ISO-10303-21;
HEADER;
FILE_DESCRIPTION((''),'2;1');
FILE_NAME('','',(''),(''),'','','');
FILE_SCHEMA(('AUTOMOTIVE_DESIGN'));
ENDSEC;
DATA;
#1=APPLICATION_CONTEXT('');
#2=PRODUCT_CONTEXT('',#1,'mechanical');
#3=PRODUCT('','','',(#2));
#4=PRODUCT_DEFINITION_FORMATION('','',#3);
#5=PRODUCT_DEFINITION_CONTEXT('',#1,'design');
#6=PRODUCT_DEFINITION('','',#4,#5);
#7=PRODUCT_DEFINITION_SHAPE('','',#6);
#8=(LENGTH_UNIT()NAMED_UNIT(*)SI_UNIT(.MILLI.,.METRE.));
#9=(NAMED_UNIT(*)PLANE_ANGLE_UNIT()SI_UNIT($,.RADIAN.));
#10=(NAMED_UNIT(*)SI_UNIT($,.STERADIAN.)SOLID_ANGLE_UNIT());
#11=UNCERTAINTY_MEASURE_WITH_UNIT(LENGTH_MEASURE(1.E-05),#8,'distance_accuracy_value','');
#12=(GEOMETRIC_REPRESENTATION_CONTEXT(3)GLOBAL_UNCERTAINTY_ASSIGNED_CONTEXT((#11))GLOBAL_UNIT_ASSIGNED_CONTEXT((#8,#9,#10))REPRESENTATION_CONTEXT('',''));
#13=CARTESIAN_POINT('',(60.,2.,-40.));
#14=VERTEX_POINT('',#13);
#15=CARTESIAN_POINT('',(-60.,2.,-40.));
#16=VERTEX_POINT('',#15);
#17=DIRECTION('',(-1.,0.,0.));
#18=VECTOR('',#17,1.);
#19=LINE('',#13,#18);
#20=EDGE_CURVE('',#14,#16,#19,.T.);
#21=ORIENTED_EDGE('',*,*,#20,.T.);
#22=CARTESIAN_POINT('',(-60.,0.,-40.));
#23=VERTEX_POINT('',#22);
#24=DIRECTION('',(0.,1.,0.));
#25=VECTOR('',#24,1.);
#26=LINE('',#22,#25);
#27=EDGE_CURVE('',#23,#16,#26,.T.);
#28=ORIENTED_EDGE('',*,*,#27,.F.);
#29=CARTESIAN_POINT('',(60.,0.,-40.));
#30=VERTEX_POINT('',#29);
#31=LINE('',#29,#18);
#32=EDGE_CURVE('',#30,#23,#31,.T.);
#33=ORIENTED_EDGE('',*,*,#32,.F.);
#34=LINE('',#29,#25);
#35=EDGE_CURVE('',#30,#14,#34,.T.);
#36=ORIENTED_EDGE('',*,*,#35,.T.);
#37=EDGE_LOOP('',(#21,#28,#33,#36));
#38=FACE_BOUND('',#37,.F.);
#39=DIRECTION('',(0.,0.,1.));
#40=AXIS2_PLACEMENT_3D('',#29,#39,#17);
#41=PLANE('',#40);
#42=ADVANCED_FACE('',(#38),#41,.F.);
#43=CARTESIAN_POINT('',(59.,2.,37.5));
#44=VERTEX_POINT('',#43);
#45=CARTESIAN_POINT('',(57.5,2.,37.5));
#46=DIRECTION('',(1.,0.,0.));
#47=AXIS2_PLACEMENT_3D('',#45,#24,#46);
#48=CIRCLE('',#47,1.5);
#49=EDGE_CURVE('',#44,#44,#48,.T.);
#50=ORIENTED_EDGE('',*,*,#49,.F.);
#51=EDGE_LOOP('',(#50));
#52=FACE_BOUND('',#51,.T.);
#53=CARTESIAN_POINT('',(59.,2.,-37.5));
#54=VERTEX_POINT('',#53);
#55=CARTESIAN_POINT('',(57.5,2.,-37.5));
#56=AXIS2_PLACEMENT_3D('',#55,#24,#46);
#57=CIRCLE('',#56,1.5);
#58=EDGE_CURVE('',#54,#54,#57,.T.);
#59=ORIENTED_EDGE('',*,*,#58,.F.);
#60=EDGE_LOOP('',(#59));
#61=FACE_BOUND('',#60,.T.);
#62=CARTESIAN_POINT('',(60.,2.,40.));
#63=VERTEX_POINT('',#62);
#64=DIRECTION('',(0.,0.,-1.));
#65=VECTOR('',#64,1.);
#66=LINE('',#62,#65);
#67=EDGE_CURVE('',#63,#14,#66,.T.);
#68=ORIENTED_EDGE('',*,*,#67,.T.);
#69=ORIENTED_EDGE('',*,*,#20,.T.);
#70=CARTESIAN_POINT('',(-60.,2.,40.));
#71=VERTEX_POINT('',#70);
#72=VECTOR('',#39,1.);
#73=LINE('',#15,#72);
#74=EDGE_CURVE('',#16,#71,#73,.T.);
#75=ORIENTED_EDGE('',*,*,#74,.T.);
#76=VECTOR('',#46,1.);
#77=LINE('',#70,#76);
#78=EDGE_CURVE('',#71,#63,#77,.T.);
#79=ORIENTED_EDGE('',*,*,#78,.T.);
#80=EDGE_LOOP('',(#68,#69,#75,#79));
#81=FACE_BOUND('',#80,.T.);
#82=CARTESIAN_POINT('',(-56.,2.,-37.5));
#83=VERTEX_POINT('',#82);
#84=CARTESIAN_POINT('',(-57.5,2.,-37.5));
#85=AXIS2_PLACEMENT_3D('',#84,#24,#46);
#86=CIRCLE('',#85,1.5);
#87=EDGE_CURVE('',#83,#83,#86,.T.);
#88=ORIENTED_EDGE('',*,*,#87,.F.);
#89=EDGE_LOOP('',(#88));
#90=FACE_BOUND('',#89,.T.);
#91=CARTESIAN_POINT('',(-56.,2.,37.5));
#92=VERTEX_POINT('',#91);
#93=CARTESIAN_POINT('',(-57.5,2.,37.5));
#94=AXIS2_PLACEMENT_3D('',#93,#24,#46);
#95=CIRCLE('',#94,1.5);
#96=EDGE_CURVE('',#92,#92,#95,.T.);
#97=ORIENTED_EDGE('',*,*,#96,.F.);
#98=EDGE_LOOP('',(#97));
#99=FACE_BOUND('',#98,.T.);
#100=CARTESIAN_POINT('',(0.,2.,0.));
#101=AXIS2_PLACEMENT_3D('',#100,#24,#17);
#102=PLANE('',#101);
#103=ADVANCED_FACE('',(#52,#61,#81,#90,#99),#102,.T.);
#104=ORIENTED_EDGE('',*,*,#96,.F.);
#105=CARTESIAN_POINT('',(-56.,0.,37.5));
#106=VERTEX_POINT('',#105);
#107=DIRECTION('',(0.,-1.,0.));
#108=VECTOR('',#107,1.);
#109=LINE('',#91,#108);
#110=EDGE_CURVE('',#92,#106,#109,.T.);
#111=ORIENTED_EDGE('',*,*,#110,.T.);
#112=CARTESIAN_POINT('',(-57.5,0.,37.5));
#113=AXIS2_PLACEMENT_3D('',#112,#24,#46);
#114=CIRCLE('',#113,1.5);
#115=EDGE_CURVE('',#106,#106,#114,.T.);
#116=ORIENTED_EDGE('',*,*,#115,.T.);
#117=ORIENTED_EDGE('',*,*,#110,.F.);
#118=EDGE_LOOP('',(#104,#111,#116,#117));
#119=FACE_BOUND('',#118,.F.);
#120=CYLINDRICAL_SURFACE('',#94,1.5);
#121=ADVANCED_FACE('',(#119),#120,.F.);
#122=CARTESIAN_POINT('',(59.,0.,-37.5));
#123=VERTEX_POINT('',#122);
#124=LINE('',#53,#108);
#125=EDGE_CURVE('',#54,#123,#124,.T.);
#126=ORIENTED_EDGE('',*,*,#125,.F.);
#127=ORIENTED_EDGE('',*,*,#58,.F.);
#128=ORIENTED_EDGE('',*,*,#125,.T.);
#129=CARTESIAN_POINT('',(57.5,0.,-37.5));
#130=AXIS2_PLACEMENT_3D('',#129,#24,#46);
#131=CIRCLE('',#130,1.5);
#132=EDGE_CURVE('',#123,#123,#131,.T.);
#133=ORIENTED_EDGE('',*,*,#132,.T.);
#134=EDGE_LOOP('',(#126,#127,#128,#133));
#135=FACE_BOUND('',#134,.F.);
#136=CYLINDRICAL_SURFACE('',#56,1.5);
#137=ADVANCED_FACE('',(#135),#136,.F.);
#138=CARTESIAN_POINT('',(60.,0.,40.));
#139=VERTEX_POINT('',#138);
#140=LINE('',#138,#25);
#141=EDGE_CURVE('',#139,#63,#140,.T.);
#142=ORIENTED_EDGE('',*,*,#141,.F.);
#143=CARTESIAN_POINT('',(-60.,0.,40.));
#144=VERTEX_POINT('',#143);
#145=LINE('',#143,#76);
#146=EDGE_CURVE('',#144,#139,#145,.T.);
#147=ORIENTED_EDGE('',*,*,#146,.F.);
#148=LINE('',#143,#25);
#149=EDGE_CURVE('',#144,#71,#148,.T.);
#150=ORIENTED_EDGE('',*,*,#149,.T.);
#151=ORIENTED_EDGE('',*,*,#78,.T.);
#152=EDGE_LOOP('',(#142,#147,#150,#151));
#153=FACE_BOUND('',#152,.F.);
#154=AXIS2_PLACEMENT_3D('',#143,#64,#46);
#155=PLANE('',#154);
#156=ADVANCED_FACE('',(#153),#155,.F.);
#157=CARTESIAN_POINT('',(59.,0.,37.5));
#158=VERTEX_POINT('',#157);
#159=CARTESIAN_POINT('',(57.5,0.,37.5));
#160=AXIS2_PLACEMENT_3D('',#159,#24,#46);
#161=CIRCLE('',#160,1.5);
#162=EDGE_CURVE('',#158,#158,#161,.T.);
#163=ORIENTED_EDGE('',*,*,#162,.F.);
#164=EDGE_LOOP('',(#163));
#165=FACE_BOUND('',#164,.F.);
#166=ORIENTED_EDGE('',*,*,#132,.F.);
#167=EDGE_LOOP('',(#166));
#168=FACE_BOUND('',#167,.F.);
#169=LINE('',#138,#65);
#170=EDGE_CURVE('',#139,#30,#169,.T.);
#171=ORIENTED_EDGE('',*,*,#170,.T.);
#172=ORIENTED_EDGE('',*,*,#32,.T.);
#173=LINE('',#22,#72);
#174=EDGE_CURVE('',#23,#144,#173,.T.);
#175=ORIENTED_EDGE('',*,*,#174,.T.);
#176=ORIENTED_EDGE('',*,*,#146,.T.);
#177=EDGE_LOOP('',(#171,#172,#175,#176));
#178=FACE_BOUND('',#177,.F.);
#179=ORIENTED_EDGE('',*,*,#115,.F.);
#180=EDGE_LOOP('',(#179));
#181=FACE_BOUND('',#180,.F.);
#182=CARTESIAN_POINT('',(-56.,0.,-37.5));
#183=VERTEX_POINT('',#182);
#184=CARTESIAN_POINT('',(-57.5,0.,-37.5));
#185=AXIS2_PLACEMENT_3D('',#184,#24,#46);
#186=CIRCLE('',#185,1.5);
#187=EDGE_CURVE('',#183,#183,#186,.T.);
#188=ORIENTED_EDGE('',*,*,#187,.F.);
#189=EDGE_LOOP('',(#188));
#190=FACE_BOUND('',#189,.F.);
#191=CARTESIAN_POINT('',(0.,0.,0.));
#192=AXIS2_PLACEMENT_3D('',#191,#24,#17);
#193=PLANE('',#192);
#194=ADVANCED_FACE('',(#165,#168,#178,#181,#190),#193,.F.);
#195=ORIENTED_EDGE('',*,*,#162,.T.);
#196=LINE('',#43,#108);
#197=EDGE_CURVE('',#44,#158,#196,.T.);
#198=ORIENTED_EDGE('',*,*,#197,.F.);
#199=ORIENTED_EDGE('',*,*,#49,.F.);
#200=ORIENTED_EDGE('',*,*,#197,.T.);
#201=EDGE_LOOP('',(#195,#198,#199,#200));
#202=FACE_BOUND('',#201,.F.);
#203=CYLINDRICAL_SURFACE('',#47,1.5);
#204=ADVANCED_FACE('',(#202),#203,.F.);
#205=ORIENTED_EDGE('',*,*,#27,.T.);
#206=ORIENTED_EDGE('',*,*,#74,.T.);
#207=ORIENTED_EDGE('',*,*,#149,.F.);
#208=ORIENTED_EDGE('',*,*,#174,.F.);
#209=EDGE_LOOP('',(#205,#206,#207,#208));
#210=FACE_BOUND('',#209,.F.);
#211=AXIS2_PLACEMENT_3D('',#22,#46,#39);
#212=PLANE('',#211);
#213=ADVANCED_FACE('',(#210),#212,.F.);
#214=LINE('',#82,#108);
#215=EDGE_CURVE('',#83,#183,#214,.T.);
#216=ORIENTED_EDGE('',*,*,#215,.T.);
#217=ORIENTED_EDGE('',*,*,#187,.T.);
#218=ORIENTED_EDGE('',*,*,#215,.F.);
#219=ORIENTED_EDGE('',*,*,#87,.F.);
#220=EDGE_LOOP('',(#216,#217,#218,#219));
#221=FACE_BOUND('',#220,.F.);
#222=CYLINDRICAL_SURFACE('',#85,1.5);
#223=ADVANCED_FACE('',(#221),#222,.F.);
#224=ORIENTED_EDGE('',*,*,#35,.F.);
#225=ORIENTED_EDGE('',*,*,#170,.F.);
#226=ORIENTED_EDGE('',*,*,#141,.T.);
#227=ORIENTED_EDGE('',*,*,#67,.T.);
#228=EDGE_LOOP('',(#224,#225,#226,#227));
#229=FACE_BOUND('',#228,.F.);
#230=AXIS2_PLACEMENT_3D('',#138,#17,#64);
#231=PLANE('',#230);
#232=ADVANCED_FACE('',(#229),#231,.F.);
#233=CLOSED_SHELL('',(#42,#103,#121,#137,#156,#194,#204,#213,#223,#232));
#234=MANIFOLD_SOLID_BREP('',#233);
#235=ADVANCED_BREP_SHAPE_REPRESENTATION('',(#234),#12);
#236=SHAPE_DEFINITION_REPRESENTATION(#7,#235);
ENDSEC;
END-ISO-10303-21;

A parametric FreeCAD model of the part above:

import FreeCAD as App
import Part
import Sketcher

doc = App.newDocument("Part")
params = doc.addObject("Spreadsheet::Sheet", "Params")
for row, (alias, value) in enumerate([
    ("sketch1_width", "120 mm"),
    ("sketch1_height", "80 mm"),
    ("pad1_length", "2 mm"),
    ("sketch2_diameter", "3 mm"),
    ("pocket1_length", "2 mm"),
], start=1):
    params.set(f"A{row}", alias)
    params.set(f"B{row}", "=" + value)
    params.setAlias(f"B{row}", alias)

body = doc.addObject("PartDesign::Body", "Body")

sketch1 = body.newObject("Sketcher::SketchObject", "Sketch")
sketch1.AttachmentSupport = (doc.getObject("XZ_Plane"), [""])
sketch1.MapMode = "FlatFace"
sketch1.addGeometry([
    Part.LineSegment(App.Vector(-60, -40, 0), App.Vector(-60, 40, 0)),
    Part.LineSegment(App.Vector(-60, 40, 0), App.Vector(60, 40, 0)),
    Part.LineSegment(App.Vector(60, 40, 0), App.Vector(60, -40, 0)),
    Part.LineSegment(App.Vector(60, -40, 0), App.Vector(-60, -40, 0)),
], False)
sketch1.addConstraint([
    Sketcher.Constraint("Coincident", 0, 2, 1, 1),
    Sketcher.Constraint("Coincident", 1, 2, 2, 1),
    Sketcher.Constraint("Coincident", 2, 2, 3, 1),
    Sketcher.Constraint("Coincident", 3, 2, 0, 1),
    Sketcher.Constraint("Vertical", 0),
    Sketcher.Constraint("Horizontal", 1),
    Sketcher.Constraint("Vertical", 2),
    Sketcher.Constraint("Horizontal", 3),
    Sketcher.Constraint("Symmetric", 0, 2, 2, 2, -1, 1),
    Sketcher.Constraint("DistanceX", 1, 1, 1, 2, 120.0),
    Sketcher.Constraint("DistanceY", 0, 1, 0, 2, 80.0),
])
sketch1.setExpression("Constraints[9]", "Params.sketch1_width")
sketch1.setExpression("Constraints[10]", "Params.sketch1_height")
pad1 = body.newObject("PartDesign::Pad", "Pad")
pad1.Profile = sketch1
pad1.setExpression("Length", "Params.pad1_length")
pad1.Reversed = True

sketch2 = body.newObject("Sketcher::SketchObject", "Sketch001")
sketch2.AttachmentSupport = (doc.getObject("XZ_Plane"), [""])
sketch2.MapMode = "FlatFace"
sketch2.AttachmentOffset = App.Placement(App.Vector(0, 0, -2), App.Rotation())
sketch2.addGeometry([
    Part.Circle(App.Vector(-57.5, -37.5, 0), App.Vector(0, 0, 1), 1.5),
    Part.Circle(App.Vector(57.5, -37.5, 0), App.Vector(0, 0, 1), 1.5),
    Part.Circle(App.Vector(-57.5, 37.5, 0), App.Vector(0, 0, 1), 1.5),
    Part.Circle(App.Vector(57.5, 37.5, 0), App.Vector(0, 0, 1), 1.5),
], False)
sketch2.addConstraint([
    Sketcher.Constraint("Equal", 0, 1),
    Sketcher.Constraint("Equal", 1, 2),
    Sketcher.Constraint("Equal", 2, 3),
    Sketcher.Constraint("Symmetric", 1, 3, 2, 3, -1, 1),
    Sketcher.Constraint("Symmetric", 0, 3, 3, 3, -1, 1),
    Sketcher.Constraint("Symmetric", 0, 3, 1, 3, -2),
    Sketcher.Constraint("Diameter", 0, 3.0),
    Sketcher.Constraint("DistanceX", 0, 3, 1, 3, 115.0),
    Sketcher.Constraint("DistanceY", 0, 3, 2, 3, 75.0),
])
sketch2.setExpression("Constraints[6]", "Params.sketch2_diameter")
pocket1 = body.newObject("PartDesign::Pocket", "Pocket")
pocket1.Profile = sketch2
pocket1.setExpression("Length", "Params.pocket1_length")
pocket1.Reversed = True

doc.recompute()
